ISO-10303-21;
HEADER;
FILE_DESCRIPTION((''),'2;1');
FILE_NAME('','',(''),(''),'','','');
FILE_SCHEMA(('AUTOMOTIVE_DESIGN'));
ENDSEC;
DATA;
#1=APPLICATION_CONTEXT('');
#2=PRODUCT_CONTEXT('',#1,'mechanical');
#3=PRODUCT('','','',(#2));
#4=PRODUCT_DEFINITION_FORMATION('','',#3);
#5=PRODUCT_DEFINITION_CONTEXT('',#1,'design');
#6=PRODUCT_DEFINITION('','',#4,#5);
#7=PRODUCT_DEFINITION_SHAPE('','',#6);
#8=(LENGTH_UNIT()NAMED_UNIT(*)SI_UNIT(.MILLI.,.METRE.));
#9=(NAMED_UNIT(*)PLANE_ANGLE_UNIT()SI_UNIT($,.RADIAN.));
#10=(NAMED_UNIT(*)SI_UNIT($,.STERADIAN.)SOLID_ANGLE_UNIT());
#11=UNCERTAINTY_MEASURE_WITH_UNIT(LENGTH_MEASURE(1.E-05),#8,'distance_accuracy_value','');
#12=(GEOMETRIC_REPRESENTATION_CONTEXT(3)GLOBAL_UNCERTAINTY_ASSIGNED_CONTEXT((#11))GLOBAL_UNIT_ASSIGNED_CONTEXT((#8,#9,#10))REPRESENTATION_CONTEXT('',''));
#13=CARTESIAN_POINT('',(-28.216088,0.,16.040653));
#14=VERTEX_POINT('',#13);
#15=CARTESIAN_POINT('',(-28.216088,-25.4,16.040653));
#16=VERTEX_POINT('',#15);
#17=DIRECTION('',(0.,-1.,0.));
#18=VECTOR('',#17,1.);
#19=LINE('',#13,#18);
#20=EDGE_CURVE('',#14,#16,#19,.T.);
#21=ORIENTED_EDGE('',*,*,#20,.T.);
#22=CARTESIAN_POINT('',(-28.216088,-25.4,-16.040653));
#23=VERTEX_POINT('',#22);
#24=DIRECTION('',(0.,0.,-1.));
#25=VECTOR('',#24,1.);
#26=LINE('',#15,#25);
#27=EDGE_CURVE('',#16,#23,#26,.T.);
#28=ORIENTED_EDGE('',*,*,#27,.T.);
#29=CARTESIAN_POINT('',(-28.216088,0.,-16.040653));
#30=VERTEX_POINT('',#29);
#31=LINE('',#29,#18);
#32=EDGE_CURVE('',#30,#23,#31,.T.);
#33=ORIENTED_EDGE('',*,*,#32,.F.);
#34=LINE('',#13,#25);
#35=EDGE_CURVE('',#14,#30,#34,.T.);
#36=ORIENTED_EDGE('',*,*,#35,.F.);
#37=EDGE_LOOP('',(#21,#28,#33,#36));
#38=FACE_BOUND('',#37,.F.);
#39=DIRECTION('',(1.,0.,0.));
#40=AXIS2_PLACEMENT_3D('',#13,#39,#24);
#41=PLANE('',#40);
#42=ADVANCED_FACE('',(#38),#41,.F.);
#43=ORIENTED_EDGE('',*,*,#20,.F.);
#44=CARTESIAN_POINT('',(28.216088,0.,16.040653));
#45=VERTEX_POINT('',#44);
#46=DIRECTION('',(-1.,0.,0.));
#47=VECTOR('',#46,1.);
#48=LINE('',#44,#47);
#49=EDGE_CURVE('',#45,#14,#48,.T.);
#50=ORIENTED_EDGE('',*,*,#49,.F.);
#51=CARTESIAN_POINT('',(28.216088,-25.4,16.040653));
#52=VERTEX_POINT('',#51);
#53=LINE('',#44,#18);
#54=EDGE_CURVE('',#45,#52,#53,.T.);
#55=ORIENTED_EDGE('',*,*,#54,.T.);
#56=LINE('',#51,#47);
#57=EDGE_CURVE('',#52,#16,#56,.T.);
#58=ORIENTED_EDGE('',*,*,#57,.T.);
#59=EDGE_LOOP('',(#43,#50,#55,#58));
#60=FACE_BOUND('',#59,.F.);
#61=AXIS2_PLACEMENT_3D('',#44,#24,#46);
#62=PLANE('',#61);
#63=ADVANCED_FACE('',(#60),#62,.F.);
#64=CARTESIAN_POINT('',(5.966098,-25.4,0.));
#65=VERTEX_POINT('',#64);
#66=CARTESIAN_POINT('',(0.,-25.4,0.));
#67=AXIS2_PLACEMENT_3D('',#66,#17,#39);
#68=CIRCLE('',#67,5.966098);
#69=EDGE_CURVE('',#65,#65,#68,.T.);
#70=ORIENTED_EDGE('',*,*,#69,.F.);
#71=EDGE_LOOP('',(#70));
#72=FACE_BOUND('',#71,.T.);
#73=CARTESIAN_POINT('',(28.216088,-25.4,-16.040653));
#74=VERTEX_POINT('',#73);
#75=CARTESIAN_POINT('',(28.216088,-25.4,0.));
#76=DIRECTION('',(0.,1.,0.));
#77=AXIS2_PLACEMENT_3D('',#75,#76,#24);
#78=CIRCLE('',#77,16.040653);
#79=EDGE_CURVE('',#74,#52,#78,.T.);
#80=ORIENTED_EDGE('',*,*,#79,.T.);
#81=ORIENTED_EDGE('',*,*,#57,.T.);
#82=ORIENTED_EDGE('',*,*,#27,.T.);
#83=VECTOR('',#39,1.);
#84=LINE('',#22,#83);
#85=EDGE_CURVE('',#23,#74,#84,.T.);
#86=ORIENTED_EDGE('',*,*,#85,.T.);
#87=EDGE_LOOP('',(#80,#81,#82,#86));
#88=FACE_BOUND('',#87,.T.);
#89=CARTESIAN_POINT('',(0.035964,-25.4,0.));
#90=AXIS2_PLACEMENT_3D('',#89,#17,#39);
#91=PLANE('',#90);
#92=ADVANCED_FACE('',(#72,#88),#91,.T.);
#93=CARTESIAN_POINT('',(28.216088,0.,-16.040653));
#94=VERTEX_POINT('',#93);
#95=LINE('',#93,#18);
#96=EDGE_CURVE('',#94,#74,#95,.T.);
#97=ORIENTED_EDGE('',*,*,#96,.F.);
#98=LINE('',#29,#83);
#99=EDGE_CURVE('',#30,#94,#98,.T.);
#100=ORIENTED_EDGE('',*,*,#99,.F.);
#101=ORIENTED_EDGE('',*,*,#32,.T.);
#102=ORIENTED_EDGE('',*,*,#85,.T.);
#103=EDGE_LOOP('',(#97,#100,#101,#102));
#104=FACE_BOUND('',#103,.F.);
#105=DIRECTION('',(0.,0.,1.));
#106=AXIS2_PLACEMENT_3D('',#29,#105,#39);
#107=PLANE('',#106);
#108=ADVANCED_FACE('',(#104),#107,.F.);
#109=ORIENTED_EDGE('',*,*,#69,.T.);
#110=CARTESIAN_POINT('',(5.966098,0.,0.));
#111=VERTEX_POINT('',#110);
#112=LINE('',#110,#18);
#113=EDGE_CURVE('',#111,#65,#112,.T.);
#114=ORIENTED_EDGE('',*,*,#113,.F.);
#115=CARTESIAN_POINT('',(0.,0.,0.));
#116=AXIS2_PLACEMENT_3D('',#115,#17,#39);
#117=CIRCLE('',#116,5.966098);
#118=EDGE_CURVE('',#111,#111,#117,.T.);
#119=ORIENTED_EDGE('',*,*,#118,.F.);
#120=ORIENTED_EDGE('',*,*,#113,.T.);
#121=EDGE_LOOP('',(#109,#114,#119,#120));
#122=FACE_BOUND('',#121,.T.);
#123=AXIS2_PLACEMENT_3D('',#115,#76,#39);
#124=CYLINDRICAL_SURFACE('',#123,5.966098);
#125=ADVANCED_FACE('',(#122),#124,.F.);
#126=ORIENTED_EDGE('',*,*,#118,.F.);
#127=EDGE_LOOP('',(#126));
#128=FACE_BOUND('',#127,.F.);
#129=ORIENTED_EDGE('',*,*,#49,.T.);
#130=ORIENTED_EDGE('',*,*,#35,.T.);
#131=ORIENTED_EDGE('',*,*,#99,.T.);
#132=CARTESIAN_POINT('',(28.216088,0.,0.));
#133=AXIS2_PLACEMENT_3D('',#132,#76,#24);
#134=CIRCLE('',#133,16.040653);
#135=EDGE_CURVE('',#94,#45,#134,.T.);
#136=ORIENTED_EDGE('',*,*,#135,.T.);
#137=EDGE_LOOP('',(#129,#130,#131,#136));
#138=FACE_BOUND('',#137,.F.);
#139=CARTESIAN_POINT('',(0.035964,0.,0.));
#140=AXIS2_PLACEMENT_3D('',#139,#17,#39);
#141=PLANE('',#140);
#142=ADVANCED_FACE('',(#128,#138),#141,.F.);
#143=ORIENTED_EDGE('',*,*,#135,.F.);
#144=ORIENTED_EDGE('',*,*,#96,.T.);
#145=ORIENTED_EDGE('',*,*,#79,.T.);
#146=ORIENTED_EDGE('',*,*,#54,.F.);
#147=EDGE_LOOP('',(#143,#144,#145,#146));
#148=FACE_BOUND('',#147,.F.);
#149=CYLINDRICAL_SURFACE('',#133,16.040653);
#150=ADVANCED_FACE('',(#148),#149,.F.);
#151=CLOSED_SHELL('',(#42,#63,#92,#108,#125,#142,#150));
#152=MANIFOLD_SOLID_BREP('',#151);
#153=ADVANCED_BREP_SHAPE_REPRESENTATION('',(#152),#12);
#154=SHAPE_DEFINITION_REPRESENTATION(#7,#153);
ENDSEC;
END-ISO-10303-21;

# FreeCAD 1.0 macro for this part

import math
import FreeCAD as App
import Part
import Sketcher
Q = App.Units.Quantity

doc = App.newDocument("Part")
body = doc.addObject("PartDesign::Body", "Body")

# Sketch on XZ plane
sketch1 = body.newObject("Sketcher::SketchObject", "Sketch")
sketch1.AttachmentSupport = (doc.getObject("XZ_Plane"), [""])
sketch1.MapMode = "FlatFace"
sketch1.addGeometry(Part.LineSegment(App.Vector(28, 16, 0), App.Vector(-28, 16, 0)), False)
sketch1.addGeometry(Part.LineSegment(App.Vector(-28, 16, 0), App.Vector(-28, -16, 0)), False)
sketch1.addGeometry(Part.LineSegment(App.Vector(-28, -16, 0), App.Vector(28, -16, 0)), False)
sketch1.addGeometry(Part.ArcOfCircle(Part.Circle(App.Vector(28, 0, 0), App.Vector(0, 0, 1), 16), math.radians(90), math.radians(270)), False)
sketch1.addGeometry(Part.Circle(App.Vector(0, 0, 0), App.Vector(0, 0, 1), 6), False)
sketch1.addConstraint(Sketcher.Constraint("Coincident", 0, 2, 1, 1))
sketch1.addConstraint(Sketcher.Constraint("Coincident", 1, 2, 2, 1))
sketch1.addConstraint(Sketcher.Constraint("Tangent", 2, 2, 3, 2))
sketch1.addConstraint(Sketcher.Constraint("Tangent", 3, 1, 0, 1))
sketch1.addConstraint(Sketcher.Constraint("Horizontal", 0))
sketch1.addConstraint(Sketcher.Constraint("Vertical", 1))
sketch1.addConstraint(Sketcher.Constraint("Horizontal", 2))
sketch1.addConstraint(Sketcher.Constraint("Coincident", 4, 3, -1, 1))
sketch1.addConstraint(Sketcher.Constraint("Symmetric", 0, 2, 2, 2, -1, 1))
sketch1.addConstraint(Sketcher.Constraint("Diameter", 4, Q("11.932196 mm")))
sketch1.addConstraint(Sketcher.Constraint("Radius", 3, Q("16.040653 mm")))
sketch1.addConstraint(Sketcher.Constraint("DistanceX", 0, 2, 0, 1, Q("56.432176 mm")))
pad1 = body.newObject("PartDesign::Pad", "Pad")
pad1.Profile = sketch1
pad1.Length = Q("1 in")

doc.recompute()
